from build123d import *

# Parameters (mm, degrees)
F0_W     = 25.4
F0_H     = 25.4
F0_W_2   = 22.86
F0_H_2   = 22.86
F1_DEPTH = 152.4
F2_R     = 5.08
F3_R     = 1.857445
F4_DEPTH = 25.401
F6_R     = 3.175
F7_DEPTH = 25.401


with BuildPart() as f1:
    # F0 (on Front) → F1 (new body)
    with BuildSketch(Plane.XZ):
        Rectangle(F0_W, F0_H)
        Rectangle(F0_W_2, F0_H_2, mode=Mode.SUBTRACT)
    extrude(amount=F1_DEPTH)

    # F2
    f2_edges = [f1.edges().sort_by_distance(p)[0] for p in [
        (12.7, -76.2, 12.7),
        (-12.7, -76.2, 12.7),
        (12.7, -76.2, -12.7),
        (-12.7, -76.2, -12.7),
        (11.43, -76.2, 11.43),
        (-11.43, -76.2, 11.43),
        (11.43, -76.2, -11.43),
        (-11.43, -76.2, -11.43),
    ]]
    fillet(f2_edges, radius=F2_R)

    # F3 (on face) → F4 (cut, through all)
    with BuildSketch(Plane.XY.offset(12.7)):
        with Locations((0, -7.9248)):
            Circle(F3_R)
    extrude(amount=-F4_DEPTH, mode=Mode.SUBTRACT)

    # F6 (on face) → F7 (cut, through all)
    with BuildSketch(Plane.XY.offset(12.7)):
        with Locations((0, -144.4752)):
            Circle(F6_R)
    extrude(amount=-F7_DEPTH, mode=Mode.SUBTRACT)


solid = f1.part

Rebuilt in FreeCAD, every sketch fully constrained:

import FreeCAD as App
import Part
import Sketcher
Q = App.Units.Quantity


def edges_at(feature, points):
    """Names of the edges that pass closest to the given points."""
    edges = feature.Shape.Edges
    near = lambda p: min(range(len(edges)), key=lambda i: edges[i].distToShape(Part.Vertex(*p))[0])
    return sorted({f"Edge{near(p) + 1}" for p in points})

doc = App.newDocument("Part")
body = doc.addObject("PartDesign::Body", "Body")

# Sketch on XZ plane
sketch1 = body.newObject("Sketcher::SketchObject", "Sketch")
sketch1.AttachmentSupport = (doc.getObject("XZ_Plane"), [""])
sketch1.MapMode = "FlatFace"
sketch1.addGeometry(Part.LineSegment(App.Vector(-13, 13, 0), App.Vector(-13, -13, 0)), False)
sketch1.addGeometry(Part.LineSegment(App.Vector(-13, -13, 0), App.Vector(13, -13, 0)), False)
sketch1.addGeometry(Part.LineSegment(App.Vector(13, -13, 0), App.Vector(13, 13, 0)), False)
sketch1.addGeometry(Part.LineSegment(App.Vector(13, 13, 0), App.Vector(-13, 13, 0)), False)
sketch1.addGeometry(Part.LineSegment(App.Vector(11, -11, 0), App.Vector(-11, -11, 0)), False)
sketch1.addGeometry(Part.LineSegment(App.Vector(-11, -11, 0), App.Vector(-11, 11, 0)), False)
sketch1.addGeometry(Part.LineSegment(App.Vector(-11, 11, 0), App.Vector(11, 11, 0)), False)
sketch1.addGeometry(Part.LineSegment(App.Vector(11, 11, 0), App.Vector(11, -11, 0)), False)
sketch1.addConstraint(Sketcher.Constraint("Coincident", 0, 2, 1, 1))
sketch1.addConstraint(Sketcher.Constraint("Coincident", 1, 2, 2, 1))
sketch1.addConstraint(Sketcher.Constraint("Coincident", 2, 2, 3, 1))
sketch1.addConstraint(Sketcher.Constraint("Coincident", 3, 2, 0, 1))
sketch1.addConstraint(Sketcher.Constraint("Coincident", 4, 2, 5, 1))
sketch1.addConstraint(Sketcher.Constraint("Coincident", 5, 2, 6, 1))
sketch1.addConstraint(Sketcher.Constraint("Coincident", 6, 2, 7, 1))
sketch1.addConstraint(Sketcher.Constraint("Coincident", 7, 2, 4, 1))
sketch1.addConstraint(Sketcher.Constraint("Vertical", 0))
sketch1.addConstraint(Sketcher.Constraint("Horizontal", 1))
sketch1.addConstraint(Sketcher.Constraint("Vertical", 2))
sketch1.addConstraint(Sketcher.Constraint("Horizontal", 3))
sketch1.addConstraint(Sketcher.Constraint("Horizontal", 4))
sketch1.addConstraint(Sketcher.Constraint("Vertical", 5))
sketch1.addConstraint(Sketcher.Constraint("Horizontal", 6))
sketch1.addConstraint(Sketcher.Constraint("Vertical", 7))
sketch1.addConstraint(Sketcher.Constraint("Symmetric", 0, 2, 2, 2, -1, 1))
sketch1.addConstraint(Sketcher.Constraint("Symmetric", 4, 2, 6, 2, -1, 1))
sketch1.addConstraint(Sketcher.Constraint("Equal", 3, 0))
sketch1.addConstraint(Sketcher.Constraint("Equal", 6, 5))
sketch1.addConstraint(Sketcher.Constraint("DistanceX", 1, 1, 1, 2, Q("1 in")))
sketch1.addConstraint(Sketcher.Constraint("DistanceX", 4, 2, 4, 1, Q("0.9 in")))
pad1 = body.newObject("PartDesign::Pad", "Pad")
pad1.Profile = sketch1
pad1.Length = Q("6 in")
doc.recompute()

fillet = body.newObject("PartDesign::Fillet", "Fillet")
fillet.Base = (pad1, edges_at(pad1, [
    (12.7, -76.2, 12.7),
    (-12.7, -76.2, 12.7),
    (12.7, -76.2, -12.7),
    (-12.7, -76.2, -12.7),
    (11.43, -76.2, 11.43),
    (-11.43, -76.2, 11.43),
    (11.43, -76.2, -11.43),
    (-11.43, -76.2, -11.43),
]))
fillet.Radius = Q("0.2 in")

# Sketch on XY plane
sketch2 = body.newObject("Sketcher::SketchObject", "Sketch001")
sketch2.AttachmentSupport = (doc.getObject("XY_Plane"), [""])
sketch2.MapMode = "FlatFace"
sketch2.AttachmentOffset = App.Placement(App.Vector(0, 0, 0.5 * 25.4), App.Rotation())
sketch2.addGeometry(Part.Circle(App.Vector(0, -7.9, 0), App.Vector(0, 0, 1), 1.9), False)
sketch2.addConstraint(Sketcher.Constraint("PointOnObject", 0, 3, -2))
sketch2.addConstraint(Sketcher.Constraint("Diameter", 0, 3.71489))
sketch2.addConstraint(Sketcher.Constraint("DistanceY", 0, 3, -1, 1, Q("0.312 in")))
pocket1 = body.newObject("PartDesign::Pocket", "Pocket")
pocket1.Profile = sketch2
pocket1.Type = "ThroughAll"

# Sketch on XY plane
sketch3 = body.newObject("Sketcher::SketchObject", "Sketch002")
sketch3.AttachmentSupport = (doc.getObject("XY_Plane"), [""])
sketch3.MapMode = "FlatFace"
sketch3.AttachmentOffset = App.Placement(App.Vector(0, 0, 0.5 * 25.4), App.Rotation())
sketch3.addGeometry(Part.Circle(App.Vector(0, -144.5, 0), App.Vector(0, 0, 1), 3.2), False)
sketch3.addConstraint(Sketcher.Constraint("PointOnObject", 0, 3, -2))
sketch3.addConstraint(Sketcher.Constraint("Diameter", 0, Q("0.25 in")))
sketch3.addConstraint(Sketcher.Constraint("DistanceY", 0, 3, -1, 1, Q("5.688 in")))
pocket2 = body.newObject("PartDesign::Pocket", "Pocket001")
pocket2.Profile = sketch3
pocket2.Type = "ThroughAll"

doc.recompute()
